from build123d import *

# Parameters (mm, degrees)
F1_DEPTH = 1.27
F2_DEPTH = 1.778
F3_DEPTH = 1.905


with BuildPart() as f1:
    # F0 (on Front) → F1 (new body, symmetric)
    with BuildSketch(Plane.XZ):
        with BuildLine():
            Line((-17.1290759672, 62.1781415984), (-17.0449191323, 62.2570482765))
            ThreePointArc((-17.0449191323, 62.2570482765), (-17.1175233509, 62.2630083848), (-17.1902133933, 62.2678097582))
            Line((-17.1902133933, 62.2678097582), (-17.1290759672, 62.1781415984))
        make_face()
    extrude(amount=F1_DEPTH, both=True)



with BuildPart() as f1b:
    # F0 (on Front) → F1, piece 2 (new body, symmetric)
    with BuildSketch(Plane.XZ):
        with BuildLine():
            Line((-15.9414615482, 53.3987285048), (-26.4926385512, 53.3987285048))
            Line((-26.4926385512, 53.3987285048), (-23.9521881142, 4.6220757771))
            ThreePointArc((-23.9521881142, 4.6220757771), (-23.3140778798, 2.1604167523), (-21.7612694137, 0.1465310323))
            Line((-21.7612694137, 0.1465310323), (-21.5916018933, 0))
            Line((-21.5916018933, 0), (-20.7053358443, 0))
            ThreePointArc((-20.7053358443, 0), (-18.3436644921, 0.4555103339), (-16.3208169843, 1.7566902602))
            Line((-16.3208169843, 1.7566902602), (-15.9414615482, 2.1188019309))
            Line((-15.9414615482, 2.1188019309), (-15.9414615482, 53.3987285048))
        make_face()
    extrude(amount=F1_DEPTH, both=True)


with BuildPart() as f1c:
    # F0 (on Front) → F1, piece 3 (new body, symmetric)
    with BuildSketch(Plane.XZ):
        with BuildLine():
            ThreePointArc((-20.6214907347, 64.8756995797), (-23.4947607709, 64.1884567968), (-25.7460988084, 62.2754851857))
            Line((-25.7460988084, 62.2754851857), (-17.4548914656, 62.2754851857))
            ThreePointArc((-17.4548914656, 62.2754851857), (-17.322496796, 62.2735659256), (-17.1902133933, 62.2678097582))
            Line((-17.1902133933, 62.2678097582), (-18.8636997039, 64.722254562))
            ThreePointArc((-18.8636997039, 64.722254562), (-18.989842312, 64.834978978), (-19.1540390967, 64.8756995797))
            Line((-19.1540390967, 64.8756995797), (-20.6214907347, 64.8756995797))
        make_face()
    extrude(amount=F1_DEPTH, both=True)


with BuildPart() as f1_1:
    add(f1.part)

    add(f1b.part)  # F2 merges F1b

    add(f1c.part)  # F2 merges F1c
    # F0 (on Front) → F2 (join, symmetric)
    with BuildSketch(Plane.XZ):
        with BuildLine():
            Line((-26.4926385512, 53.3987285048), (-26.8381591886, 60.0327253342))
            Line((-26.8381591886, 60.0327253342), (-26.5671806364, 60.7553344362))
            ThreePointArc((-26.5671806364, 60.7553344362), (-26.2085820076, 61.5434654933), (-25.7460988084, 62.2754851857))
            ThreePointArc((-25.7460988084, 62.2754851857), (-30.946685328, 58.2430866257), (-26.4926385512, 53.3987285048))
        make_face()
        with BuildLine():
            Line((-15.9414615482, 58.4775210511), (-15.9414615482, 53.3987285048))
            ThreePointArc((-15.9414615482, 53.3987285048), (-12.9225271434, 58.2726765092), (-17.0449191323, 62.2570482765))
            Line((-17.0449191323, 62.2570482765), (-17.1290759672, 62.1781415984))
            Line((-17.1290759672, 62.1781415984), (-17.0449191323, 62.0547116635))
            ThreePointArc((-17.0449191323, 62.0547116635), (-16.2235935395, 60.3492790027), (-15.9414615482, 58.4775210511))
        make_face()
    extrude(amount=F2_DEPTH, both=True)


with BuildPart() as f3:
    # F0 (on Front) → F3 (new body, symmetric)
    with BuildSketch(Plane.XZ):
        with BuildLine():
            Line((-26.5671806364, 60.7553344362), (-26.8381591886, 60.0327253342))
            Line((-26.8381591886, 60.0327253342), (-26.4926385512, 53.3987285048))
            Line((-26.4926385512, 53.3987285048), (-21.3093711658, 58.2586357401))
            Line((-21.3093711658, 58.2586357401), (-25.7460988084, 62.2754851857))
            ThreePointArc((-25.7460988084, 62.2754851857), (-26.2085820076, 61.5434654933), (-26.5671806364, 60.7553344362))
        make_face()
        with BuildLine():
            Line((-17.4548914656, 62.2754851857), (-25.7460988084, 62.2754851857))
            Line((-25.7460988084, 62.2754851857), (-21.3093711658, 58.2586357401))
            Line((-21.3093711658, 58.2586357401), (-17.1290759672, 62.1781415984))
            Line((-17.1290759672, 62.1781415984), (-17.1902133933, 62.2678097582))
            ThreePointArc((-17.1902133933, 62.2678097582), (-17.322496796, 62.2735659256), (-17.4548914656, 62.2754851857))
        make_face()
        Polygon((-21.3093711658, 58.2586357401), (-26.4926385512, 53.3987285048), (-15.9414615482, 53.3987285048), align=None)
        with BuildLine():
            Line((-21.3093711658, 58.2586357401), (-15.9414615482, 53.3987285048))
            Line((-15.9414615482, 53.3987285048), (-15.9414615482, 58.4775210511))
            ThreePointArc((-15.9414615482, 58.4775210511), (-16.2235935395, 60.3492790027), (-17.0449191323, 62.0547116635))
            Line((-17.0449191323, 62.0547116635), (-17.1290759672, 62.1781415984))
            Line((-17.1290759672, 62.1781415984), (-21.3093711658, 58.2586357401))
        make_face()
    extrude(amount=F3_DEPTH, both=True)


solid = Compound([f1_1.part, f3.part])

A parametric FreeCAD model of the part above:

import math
import FreeCAD as App
import Part
import Sketcher
Q = App.Units.Quantity

doc = App.newDocument("Part")
params = doc.addObject("Spreadsheet::Sheet", "Params")
for row, (alias, value) in enumerate([
    ("pad1_length", "0.1 in"),
    ("sketch2_radius", "0.25 in"),
    ("pad2_length", "0.1 in"),
    ("sketch3_radius", "0.25 in"),
    ("pad3_length", "0.1 in"),
    ("sketch4_radius", "0.25 in"),
    ("sketch4_radius2", "0.25 in"),
    ("pad4_length", "0.14 in"),
    ("sketch5_radius", "0.25 in"),
    ("pad5_length", "0.15 in"),
], start=1):
    params.set(f"A{row}", alias)
    params.set(f"B{row}", "=" + value)
    params.setAlias(f"B{row}", alias)

body = doc.addObject("PartDesign::Body", "Body")

sketch1 = body.newObject("Sketcher::SketchObject", "Sketch")
sketch1.AttachmentSupport = (doc.getObject("XZ_Plane"), [""])
sketch1.MapMode = "FlatFace"
sketch1.addGeometry([
    Part.LineSegment(App.Vector(-17.13, 62.18, 0), App.Vector(-17.04, 62.26, 0)),
    Part.ArcOfCircle(Part.Circle(App.Vector(-17.45, 57.71, 0), App.Vector(0, 0, 1), 4.57), math.radians(84.85), math.radians(86.68)),
    Part.LineSegment(App.Vector(-17.19, 62.27, 0), App.Vector(-17.13, 62.18, 0)),
], False)
sketch1.addConstraint([
    Sketcher.Constraint("Coincident", 0, 2, 1, 1),
    Sketcher.Constraint("Coincident", 1, 2, 2, 1),
    Sketcher.Constraint("Coincident", 2, 2, 0, 1),
    Sketcher.Constraint("Radius", 1, Q("4.567394 mm")),
    Sketcher.Constraint("DistanceX", 1, 3, -1, 1, Q("17.454891 mm")),
    Sketcher.Constraint("DistanceY", -1, 1, 1, 3, Q("57.708091 mm")),
    Sketcher.Constraint("DistanceX", 0, 2, -1, 1, Q("17.044919 mm")),
    Sketcher.Constraint("DistanceY", -1, 1, 1, 2, Q("62.26781 mm")),
    Sketcher.Constraint("DistanceY", -1, 1, 2, 2, Q("62.178142 mm")),
    Sketcher.Constraint("Distance", 0, Q("0.115363 mm")),
])
pad1 = body.newObject("PartDesign::Pad", "Pad")
pad1.Profile = sketch1
pad1.setExpression("Length", "Params.pad1_length")
pad1.Midplane = True
body2 = doc.addObject("PartDesign::Body", "Body001")

sketch2 = body2.newObject("Sketcher::SketchObject", "Sketch001")
sketch2.AttachmentSupport = (doc.getObject("XZ_Plane001"), [""])
sketch2.MapMode = "FlatFace"
sketch2.addGeometry([
    Part.LineSegment(App.Vector(-15.94, 53.4, 0), App.Vector(-26.49, 53.4, 0)),
    Part.LineSegment(App.Vector(-26.49, 53.4, 0), App.Vector(-23.95, 4.62, 0)),
    Part.ArcOfCircle(Part.Circle(App.Vector(-17.61, 4.95, 0), App.Vector(0, 0, 1), 6.35), math.radians(-177), math.radians(-131)),
    Part.LineSegment(App.Vector(-21.76, 0.15, 0), App.Vector(-21.59, 0, 0)),
    Part.LineSegment(App.Vector(-21.59, 0, 0), App.Vector(-20.71, 0, 0)),
    Part.ArcOfCircle(Part.Circle(App.Vector(-20.71, 6.35, 0), App.Vector(0, 0, 1), 6.35), math.radians(-90), math.radians(-46)),
    Part.LineSegment(App.Vector(-16.32, 1.76, 0), App.Vector(-15.94, 2.12, 0)),
    Part.LineSegment(App.Vector(-15.94, 2.12, 0), App.Vector(-15.94, 53.4, 0)),
], False)
sketch2.addConstraint([
    Sketcher.Constraint("Coincident", 0, 2, 1, 1),
    Sketcher.Constraint("Tangent", 1, 2, 2, 1),
    Sketcher.Constraint("Tangent", 2, 2, 3, 1),
    Sketcher.Constraint("Coincident", 3, 2, 4, 1),
    Sketcher.Constraint("Tangent", 4, 2, 5, 1),
    Sketcher.Constraint("Tangent", 5, 2, 6, 1),
    Sketcher.Constraint("Coincident", 6, 2, 7, 1),
    Sketcher.Constraint("Coincident", 7, 2, 0, 1),
    Sketcher.Constraint("Horizontal", 0),
    Sketcher.Constraint("Horizontal", 4),
    Sketcher.Constraint("Vertical", 7),
    Sketcher.Constraint("Equal", 2, 5),
    Sketcher.Constraint("PointOnObject", 3, 2, -1),
    Sketcher.Constraint("Radius", 2, Q("0.25 in")),
    Sketcher.Constraint("DistanceX", 3, 2, -1, 1, Q("21.591602 mm")),
    Sketcher.Constraint("DistanceY", -1, 1, 6, 2, Q("2.118802 mm")),
    Sketcher.Constraint("Distance", 6, Q("0.524438 mm")),
    Sketcher.Constraint("DistanceX", 0, 2, 0, 1, Q("10.551177 mm")),
    Sketcher.Constraint("DistanceX", 4, 1, 4, 2, Q("0.886266 mm")),
    Sketcher.Constraint("DistanceY", 7, 1, 7, 2, Q("51.279927 mm")),
    Sketcher.Constraint("DistanceX", 1, 2, -1, 1, Q("23.952188 mm")),
    Sketcher.Constraint("DistanceX", 2, 2, -1, 1, Q("21.761269 mm")),
])
sketch2.setExpression("Constraints[13]", "Params.sketch2_radius")
pad2 = body2.newObject("PartDesign::Pad", "Pad001")
pad2.Profile = sketch2
pad2.setExpression("Length", "Params.pad2_length")
pad2.Midplane = True
body3 = doc.addObject("PartDesign::Body", "Body002")

sketch3 = body3.newObject("Sketcher::SketchObject", "Sketch002")
sketch3.AttachmentSupport = (doc.getObject("XZ_Plane002"), [""])
sketch3.MapMode = "FlatFace"
sketch3.addGeometry([
    Part.ArcOfCircle(Part.Circle(App.Vector(-20.62, 58.53, 0), App.Vector(0, 0, 1), 6.35), math.radians(90), math.radians(144)),
    Part.LineSegment(App.Vector(-25.75, 62.28, 0), App.Vector(-17.45, 62.28, 0)),
    Part.ArcOfCircle(Part.Circle(App.Vector(-17.45, 57.71, 0), App.Vector(0, 0, 1), 4.57), math.radians(86.68), math.radians(90)),
    Part.LineSegment(App.Vector(-17.19, 62.27, 0), App.Vector(-18.86, 64.72, 0)),
    Part.ArcOfCircle(Part.Circle(App.Vector(-19.15, 64.52, 0), App.Vector(0, 0, 1), 0.35), math.radians(34), math.radians(90)),
    Part.LineSegment(App.Vector(-19.15, 64.88, 0), App.Vector(-20.62, 64.88, 0)),
], False)
sketch3.addConstraint([
    Sketcher.Constraint("Coincident", 0, 2, 1, 1),
    Sketcher.Constraint("Tangent", 1, 2, 2, 2),
    Sketcher.Constraint("Coincident", 2, 1, 3, 1),
    Sketcher.Constraint("Tangent", 3, 2, 4, 1),
    Sketcher.Constraint("Tangent", 4, 2, 5, 1),
    Sketcher.Constraint("Tangent", 5, 2, 0, 1),
    Sketcher.Constraint("Horizontal", 1),
    Sketcher.Constraint("Horizontal", 5),
    Sketcher.Constraint("Radius", 0, Q("0.25 in")),
    Sketcher.Constraint("Radius", 2, Q("4.567393 mm")),
    Sketcher.Constraint("Radius", 4, Q("0.351404 mm")),
    Sketcher.Constraint("DistanceX", 5, 2, 5, 1, Q("1.467452 mm")),
    Sketcher.Constraint("DistanceY", -1, 1, 0, 3, Q("58.5257 mm")),
    Sketcher.Constraint("DistanceX", 0, 2, -1, 1, Q("25.746099 mm")),
    Sketcher.Constraint("DistanceX", 3, 2, -1, 1, Q("18.8637 mm")),
    Sketcher.Constraint("DistanceX", 0, 3, 2, 3, Q("3.166599 mm")),
    Sketcher.Constraint("DistanceX", 1, 1, 1, 2, Q("8.291207 mm")),
])
sketch3.setExpression("Constraints[8]", "Params.sketch3_radius")
pad3 = body3.newObject("PartDesign::Pad", "Pad002")
pad3.Profile = sketch3
pad3.setExpression("Length", "Params.pad3_length")
pad3.Midplane = True
body.AllowCompound = True
doc.recompute()

boolean = body.newObject("PartDesign::Boolean", "Boolean")
boolean.Type = "Fuse"
boolean.addObjects([body2])
doc.recompute()

boolean2 = body.newObject("PartDesign::Boolean", "Boolean001")
boolean2.Type = "Fuse"
boolean2.addObjects([body3])

sketch4 = body.newObject("Sketcher::SketchObject", "Sketch003")
sketch4.AttachmentSupport = (doc.getObject("XZ_Plane"), [""])
sketch4.MapMode = "FlatFace"
sketch4.addGeometry([
    Part.LineSegment(App.Vector(-26.492639, 53.398729, 0), App.Vector(-26.838159, 60.032725, 0)),
    Part.LineSegment(App.Vector(-26.838159, 60.032725, 0), App.Vector(-26.567181, 60.755334, 0)),
    Part.ArcOfCircle(Part.Circle(App.Vector(-20.621491, 58.5257, 0), App.Vector(0, 0, 1), 6.35), math.radians(143.806266), math.radians(159.443945)),
    Part.ArcOfCircle(Part.Circle(App.Vector(-26.492639, 57.868499, 0), App.Vector(0, 0, 1), 4.469771), math.radians(80.385417), math.radians(270)),
    Part.LineSegment(App.Vector(-15.941462, 58.477521, 0), App.Vector(-15.941462, 53.398729, 0)),
    Part.ArcOfCircle(Part.Circle(App.Vector(-17.454891, 57.708092, 0), App.Vector(0, 0, 1), 4.567393), math.radians(-70.648944), math.radians(84.850161)),
    Part.LineSegment(App.Vector(-17.044919, 62.257048, 0), App.Vector(-17.129076, 62.178142, 0)),
    Part.LineSegment(App.Vector(-17.129076, 62.178142, 0), App.Vector(-17.044919, 62.054712, 0)),
    Part.ArcOfCircle(Part.Circle(App.Vector(-22.291462, 58.477521, 0), App.Vector(0, 0, 1), 6.35), math.radians(0), math.radians(34.286896)),
], False)
sketch4.addConstraint([
    Sketcher.Constraint("Coincident", 0, 2, 1, 1),
    Sketcher.Constraint("Coincident", 1, 2, 2, 2),
    Sketcher.Constraint("Coincident", 2, 1, 3, 1),
    Sketcher.Constraint("Coincident", 3, 2, 0, 1),
    Sketcher.Constraint("Coincident", 4, 2, 5, 1),
    Sketcher.Constraint("Coincident", 5, 2, 6, 1),
    Sketcher.Constraint("Coincident", 6, 2, 7, 1),
    Sketcher.Constraint("Coincident", 7, 2, 8, 2),
    Sketcher.Constraint("Coincident", 8, 1, 4, 1),
    Sketcher.Constraint("Vertical", 4),
    Sketcher.Constraint("Radius", 2, Q("0.25 in")),
    Sketcher.Constraint("Radius", 8, Q("0.25 in")),
    Sketcher.Constraint("Radius", 3, Q("4.469771 mm")),
    Sketcher.Constraint("Radius", 5, Q("4.567393 mm")),
    Sketcher.Constraint("DistanceY", -1, 1, 2, 3, Q("58.5257 mm")),
    Sketcher.Constraint("DistanceY", -1, 1, 3, 3, Q("57.868499 mm")),
    Sketcher.Constraint("DistanceX", 2, 1, -1, 1, Q("25.746099 mm")),
    Sketcher.Constraint("DistanceX", 2, 3, 5, 3, Q("3.166599 mm")),
    Sketcher.Constraint("Distance", 0, Q("6.642989 mm")),
    Sketcher.Constraint("Distance", 7, Q("0.14939 mm")),
    Sketcher.Constraint("DistanceY", 4, 2, 4, 1, Q("5.078793 mm")),
    Sketcher.Constraint("DistanceX", 2, 3, -1, 1, Q("20.621491 mm")),
    Sketcher.Constraint("DistanceY", -1, 1, 5, 3, Q("57.708092 mm")),
    Sketcher.Constraint("DistanceX", 8, 3, -1, 1, Q("22.291462 mm")),
    Sketcher.Constraint("DistanceY", -1, 1, 8, 3, Q("58.477521 mm")),
    Sketcher.Constraint("DistanceX", 0, 2, -1, 1, Q("26.838159 mm")),
    Sketcher.Constraint("DistanceX", 1, 2, -1, 1, Q("26.567181 mm")),
    Sketcher.Constraint("DistanceX", 3, 2, -1, 1, Q("26.492639 mm")),
    Sketcher.Constraint("DistanceX", 5, 2, -1, 1, Q("17.044919 mm")),
    Sketcher.Constraint("DistanceY", -1, 1, 6, 2, Q("62.178142 mm")),
    Sketcher.Constraint("DistanceX", 7, 2, -1, 1, Q("17.044919 mm")),
])
sketch4.setExpression("Constraints[10]", "Params.sketch4_radius")
sketch4.setExpression("Constraints[11]", "Params.sketch4_radius2")
pad4 = body.newObject("PartDesign::Pad", "Pad003")
pad4.Profile = sketch4
pad4.setExpression("Length", "Params.pad4_length")
pad4.Midplane = True
body4 = doc.addObject("PartDesign::Body", "Body003")

sketch5 = body4.newObject("Sketcher::SketchObject", "Sketch004")
sketch5.AttachmentSupport = (doc.getObject("XZ_Plane003"), [""])
sketch5.MapMode = "FlatFace"
sketch5.addGeometry([
    Part.LineSegment(App.Vector(-26.57, 60.76, 0), App.Vector(-26.84, 60.03, 0)),
    Part.LineSegment(App.Vector(-26.84, 60.03, 0), App.Vector(-26.49, 53.4, 0)),
    Part.LineSegment(App.Vector(-26.49, 53.4, 0), App.Vector(-15.94, 53.4, 0)),
    Part.LineSegment(App.Vector(-15.94, 53.4, 0), App.Vector(-15.94, 58.48, 0)),
    Part.ArcOfCircle(Part.Circle(App.Vector(-22.29, 58.48, 0), App.Vector(0, 0, 1), 6.35), math.radians(0), math.radians(34)),
    Part.LineSegment(App.Vector(-17.04, 62.05, 0), App.Vector(-17.13, 62.18, 0)),
    Part.LineSegment(App.Vector(-17.13, 62.18, 0), App.Vector(-17.19, 62.27, 0)),
    Part.ArcOfCircle(Part.Circle(App.Vector(-17.45, 57.71, 0), App.Vector(0, 0, 1), 4.57), math.radians(86.68), math.radians(90)),
    Part.LineSegment(App.Vector(-17.45, 62.28, 0), App.Vector(-25.75, 62.28, 0)),
    Part.ArcOfCircle(Part.Circle(App.Vector(-20.62, 58.53, 0), App.Vector(0, 0, 1), 6.35), math.radians(143.81), math.radians(159.44)),
], False)
sketch5.addConstraint([
    Sketcher.Constraint("Coincident", 0, 2, 1, 1),
    Sketcher.Constraint("Coincident", 1, 2, 2, 1),
    Sketcher.Constraint("Coincident", 2, 2, 3, 1),
    Sketcher.Constraint("Tangent", 3, 2, 4, 1),
    Sketcher.Constraint("Tangent", 4, 2, 5, 1),
    Sketcher.Constraint("Coincident", 5, 2, 6, 1),
    Sketcher.Constraint("Coincident", 6, 2, 7, 1),
    Sketcher.Constraint("Tangent", 7, 2, 8, 1),
    Sketcher.Constraint("Coincident", 8, 2, 9, 1),
    Sketcher.Constraint("Tangent", 9, 2, 0, 1),
    Sketcher.Constraint("Horizontal", 2),
    Sketcher.Constraint("Vertical", 3),
    Sketcher.Constraint("Horizontal", 8),
    Sketcher.Constraint("Equal", 4, 9),
    Sketcher.Constraint("Parallel", 5, 6),
    Sketcher.Constraint("Radius", 4, Q("0.25 in")),
    Sketcher.Constraint("Radius", 7, Q("4.567393 mm")),
    Sketcher.Constraint("DistanceY", -1, 1, 9, 3, Q("58.5257 mm")),
    Sketcher.Constraint("DistanceX", 8, 2, -1, 1, Q("25.746099 mm")),
    Sketcher.Constraint("DistanceX", 9, 3, 7, 3, Q("3.166599 mm")),
    Sketcher.Constraint("DistanceY", 4, 2, 6, 2, Q("0.213098 mm")),
    Sketcher.Constraint("Distance", 1, Q("6.642989 mm")),
    Sketcher.Constraint("Distance", 5, Q("0.14939 mm")),
    Sketcher.Constraint("DistanceX", 2, 1, 2, 2, Q("10.551177 mm")),
    Sketcher.Constraint("DistanceX", 8, 2, 8, 1, Q("8.291207 mm")),
    Sketcher.Constraint("DistanceY", 3, 1, 3, 2, Q("5.078793 mm")),
    Sketcher.Constraint("DistanceX", 4, 3, -1, 1, Q("22.291462 mm")),
    Sketcher.Constraint("DistanceY", -1, 1, 4, 3, Q("58.477521 mm")),
    Sketcher.Constraint("DistanceX", 0, 2, -1, 1, Q("26.838159 mm")),
])
sketch5.setExpression("Constraints[15]", "Params.sketch5_radius")
pad5 = body4.newObject("PartDesign::Pad", "Pad004")
pad5.Profile = sketch5
pad5.setExpression("Length", "Params.pad5_length")
pad5.Midplane = True

doc.recompute()
